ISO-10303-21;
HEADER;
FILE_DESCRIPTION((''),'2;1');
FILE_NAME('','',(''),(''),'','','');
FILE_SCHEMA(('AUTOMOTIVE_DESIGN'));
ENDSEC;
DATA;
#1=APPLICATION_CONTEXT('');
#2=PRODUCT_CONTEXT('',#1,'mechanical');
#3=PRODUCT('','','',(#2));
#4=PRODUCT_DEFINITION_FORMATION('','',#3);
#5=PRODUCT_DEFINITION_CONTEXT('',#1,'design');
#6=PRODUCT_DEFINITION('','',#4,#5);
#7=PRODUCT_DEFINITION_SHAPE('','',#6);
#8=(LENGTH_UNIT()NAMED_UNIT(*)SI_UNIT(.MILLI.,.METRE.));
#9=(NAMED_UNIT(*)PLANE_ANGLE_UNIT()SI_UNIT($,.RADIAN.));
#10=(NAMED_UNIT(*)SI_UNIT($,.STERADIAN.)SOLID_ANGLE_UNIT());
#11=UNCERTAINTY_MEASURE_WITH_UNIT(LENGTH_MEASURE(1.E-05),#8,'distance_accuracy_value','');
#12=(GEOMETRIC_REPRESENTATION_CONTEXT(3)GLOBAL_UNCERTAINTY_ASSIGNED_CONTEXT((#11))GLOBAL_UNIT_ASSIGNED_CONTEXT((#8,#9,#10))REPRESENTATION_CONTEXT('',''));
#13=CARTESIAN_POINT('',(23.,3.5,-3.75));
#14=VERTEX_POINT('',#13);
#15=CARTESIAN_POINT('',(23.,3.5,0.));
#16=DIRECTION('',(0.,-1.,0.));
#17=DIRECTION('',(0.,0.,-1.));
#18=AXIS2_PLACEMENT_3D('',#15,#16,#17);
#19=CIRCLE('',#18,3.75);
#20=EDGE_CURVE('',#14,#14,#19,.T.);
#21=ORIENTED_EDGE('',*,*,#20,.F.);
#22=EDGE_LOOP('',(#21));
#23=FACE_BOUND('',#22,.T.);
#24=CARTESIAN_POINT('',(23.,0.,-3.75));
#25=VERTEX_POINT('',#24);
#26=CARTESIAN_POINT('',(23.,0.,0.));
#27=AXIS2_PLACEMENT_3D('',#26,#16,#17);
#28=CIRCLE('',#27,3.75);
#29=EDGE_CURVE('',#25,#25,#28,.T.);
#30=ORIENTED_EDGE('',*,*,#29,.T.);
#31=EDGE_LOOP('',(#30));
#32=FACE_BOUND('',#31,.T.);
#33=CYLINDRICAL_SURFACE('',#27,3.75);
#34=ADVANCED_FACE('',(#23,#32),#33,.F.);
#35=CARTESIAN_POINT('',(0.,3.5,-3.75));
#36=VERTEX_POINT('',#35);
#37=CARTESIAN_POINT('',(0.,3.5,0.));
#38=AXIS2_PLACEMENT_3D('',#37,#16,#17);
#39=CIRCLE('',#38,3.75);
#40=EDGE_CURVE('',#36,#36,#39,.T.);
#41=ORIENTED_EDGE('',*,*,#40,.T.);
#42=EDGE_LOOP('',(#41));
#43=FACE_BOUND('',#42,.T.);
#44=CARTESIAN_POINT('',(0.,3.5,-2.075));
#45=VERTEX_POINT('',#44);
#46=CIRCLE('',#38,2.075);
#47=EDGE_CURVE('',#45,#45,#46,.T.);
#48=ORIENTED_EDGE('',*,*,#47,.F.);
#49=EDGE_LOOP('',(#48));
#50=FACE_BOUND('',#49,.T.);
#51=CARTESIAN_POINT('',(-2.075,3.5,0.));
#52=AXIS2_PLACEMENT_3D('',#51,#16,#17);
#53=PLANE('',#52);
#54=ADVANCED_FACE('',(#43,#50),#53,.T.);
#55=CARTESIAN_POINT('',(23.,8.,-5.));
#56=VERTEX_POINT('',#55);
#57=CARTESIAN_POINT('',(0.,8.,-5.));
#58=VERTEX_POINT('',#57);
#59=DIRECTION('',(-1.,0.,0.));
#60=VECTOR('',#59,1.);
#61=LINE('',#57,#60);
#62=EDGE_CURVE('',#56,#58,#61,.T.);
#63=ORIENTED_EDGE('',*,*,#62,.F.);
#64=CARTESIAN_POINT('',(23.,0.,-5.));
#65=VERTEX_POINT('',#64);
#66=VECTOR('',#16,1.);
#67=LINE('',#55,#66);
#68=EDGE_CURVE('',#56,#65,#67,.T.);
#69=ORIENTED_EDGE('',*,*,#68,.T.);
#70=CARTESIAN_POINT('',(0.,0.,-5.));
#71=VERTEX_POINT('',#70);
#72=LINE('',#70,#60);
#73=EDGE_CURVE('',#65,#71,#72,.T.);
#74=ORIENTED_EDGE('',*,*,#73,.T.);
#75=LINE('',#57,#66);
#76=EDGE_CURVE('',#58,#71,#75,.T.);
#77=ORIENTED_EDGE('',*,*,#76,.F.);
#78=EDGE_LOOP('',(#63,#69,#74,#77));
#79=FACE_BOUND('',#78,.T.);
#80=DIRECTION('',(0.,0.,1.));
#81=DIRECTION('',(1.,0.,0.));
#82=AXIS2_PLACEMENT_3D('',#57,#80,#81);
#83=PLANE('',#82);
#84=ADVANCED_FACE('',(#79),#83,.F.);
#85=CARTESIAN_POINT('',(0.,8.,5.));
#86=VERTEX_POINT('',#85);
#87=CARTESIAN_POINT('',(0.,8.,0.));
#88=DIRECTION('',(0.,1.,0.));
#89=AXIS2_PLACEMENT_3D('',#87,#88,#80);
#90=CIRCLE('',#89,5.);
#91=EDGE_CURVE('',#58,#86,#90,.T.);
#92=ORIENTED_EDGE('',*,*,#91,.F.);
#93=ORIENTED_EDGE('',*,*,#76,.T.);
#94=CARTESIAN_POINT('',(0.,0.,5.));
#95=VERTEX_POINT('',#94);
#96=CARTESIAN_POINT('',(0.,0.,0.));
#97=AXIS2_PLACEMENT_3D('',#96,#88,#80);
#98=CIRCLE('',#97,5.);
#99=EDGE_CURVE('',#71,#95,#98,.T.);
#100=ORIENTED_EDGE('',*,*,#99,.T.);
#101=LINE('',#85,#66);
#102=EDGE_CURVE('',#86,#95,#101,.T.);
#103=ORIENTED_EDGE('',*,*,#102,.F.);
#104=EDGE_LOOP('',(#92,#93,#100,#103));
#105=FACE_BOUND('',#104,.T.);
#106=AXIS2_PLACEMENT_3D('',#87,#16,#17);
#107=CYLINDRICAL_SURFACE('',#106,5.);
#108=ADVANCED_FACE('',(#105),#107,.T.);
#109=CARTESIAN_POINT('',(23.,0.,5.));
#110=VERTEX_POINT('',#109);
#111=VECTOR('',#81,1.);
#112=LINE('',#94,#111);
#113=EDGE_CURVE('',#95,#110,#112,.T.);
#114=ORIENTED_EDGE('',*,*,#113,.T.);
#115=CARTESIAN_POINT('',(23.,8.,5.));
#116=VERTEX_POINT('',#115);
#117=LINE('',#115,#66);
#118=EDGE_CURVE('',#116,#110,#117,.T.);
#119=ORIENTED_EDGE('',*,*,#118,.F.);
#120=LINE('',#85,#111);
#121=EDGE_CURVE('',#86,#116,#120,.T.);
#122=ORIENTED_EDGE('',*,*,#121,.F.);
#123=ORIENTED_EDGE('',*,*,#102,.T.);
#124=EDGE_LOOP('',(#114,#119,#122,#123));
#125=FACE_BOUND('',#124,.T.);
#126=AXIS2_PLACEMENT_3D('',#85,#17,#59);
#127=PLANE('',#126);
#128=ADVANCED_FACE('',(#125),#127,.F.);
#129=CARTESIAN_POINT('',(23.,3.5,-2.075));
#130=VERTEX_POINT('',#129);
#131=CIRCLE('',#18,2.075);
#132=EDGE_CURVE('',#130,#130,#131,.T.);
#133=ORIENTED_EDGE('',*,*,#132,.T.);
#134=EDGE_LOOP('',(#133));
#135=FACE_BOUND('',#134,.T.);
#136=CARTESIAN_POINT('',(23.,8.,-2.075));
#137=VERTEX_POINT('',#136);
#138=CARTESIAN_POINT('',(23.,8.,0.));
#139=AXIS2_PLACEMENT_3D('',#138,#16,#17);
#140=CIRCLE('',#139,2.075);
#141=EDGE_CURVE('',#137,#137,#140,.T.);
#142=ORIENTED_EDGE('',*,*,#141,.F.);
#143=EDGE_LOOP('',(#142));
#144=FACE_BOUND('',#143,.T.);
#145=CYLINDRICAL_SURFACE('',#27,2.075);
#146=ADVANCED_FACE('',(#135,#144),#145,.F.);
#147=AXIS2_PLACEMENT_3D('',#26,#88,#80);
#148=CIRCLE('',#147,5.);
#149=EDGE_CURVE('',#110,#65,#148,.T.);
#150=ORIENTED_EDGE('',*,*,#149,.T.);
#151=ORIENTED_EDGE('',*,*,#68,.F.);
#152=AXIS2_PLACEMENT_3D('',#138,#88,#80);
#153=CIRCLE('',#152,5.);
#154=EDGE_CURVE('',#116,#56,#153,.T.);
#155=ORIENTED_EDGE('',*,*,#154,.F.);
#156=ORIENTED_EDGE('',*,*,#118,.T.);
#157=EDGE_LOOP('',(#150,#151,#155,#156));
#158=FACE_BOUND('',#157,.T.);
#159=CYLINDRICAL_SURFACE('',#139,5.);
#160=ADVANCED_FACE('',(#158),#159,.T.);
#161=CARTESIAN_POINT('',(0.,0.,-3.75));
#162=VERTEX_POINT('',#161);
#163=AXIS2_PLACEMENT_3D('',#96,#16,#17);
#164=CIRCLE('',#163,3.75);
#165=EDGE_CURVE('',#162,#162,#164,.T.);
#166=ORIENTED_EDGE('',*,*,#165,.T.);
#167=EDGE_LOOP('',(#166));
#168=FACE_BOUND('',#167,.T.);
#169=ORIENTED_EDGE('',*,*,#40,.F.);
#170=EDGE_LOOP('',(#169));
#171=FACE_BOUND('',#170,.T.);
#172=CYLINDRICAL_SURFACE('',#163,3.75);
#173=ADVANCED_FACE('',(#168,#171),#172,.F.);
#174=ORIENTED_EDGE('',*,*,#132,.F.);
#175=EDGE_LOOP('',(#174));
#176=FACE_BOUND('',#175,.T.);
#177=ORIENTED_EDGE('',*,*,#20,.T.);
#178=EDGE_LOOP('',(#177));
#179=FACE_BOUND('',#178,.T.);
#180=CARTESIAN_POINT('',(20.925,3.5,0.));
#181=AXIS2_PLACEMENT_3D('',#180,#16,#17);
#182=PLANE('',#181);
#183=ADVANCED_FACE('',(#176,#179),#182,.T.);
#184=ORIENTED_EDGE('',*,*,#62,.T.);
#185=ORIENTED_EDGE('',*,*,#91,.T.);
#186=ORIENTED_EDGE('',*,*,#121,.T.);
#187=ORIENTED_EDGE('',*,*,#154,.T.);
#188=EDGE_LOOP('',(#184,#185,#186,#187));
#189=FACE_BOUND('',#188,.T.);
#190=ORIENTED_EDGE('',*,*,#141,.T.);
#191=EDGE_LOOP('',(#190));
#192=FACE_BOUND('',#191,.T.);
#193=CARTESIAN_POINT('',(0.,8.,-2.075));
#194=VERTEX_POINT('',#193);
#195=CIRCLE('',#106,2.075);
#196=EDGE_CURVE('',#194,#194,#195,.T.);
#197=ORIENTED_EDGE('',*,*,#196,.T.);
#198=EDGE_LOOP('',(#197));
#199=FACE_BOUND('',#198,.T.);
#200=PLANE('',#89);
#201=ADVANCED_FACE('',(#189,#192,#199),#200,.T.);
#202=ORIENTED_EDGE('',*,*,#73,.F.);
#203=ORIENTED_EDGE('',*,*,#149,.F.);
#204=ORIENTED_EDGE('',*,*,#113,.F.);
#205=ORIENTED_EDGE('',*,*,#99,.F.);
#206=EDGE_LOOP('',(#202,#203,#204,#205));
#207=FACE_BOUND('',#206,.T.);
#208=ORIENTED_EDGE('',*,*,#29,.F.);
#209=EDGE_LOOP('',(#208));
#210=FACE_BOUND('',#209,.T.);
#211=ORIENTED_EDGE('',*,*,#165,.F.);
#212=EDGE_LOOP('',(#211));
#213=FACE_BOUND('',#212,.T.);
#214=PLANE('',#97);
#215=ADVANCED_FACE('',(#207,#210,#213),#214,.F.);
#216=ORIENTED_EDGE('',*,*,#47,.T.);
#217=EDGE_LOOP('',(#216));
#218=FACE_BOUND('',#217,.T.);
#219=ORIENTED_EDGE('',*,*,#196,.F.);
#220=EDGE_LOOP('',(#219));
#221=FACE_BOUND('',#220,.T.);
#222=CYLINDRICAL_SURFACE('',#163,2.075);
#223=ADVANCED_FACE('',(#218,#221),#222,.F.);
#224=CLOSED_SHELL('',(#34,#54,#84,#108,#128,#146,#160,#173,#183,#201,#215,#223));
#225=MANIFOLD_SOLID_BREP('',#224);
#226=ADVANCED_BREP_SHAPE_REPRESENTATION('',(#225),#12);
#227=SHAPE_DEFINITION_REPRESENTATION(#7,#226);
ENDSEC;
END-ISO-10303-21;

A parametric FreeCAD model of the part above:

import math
import FreeCAD as App
import Part
import Sketcher

V = App.Vector
Q = App.Units.Quantity

doc = App.newDocument("Part")
body = doc.addObject("PartDesign::Body", "Body")

# Sketch on XZ plane
sketch1 = body.newObject("Sketcher::SketchObject", "Sketch")
sketch1.AttachmentSupport = (doc.getObject("XZ_Plane"), [""])
sketch1.MapMode = "FlatFace"
sketch1.addGeometry([
    Part.LineSegment(V(23, -5, 0), V(0, -5, 0)),
    Part.ArcOfCircle(Part.Circle(V(0, 0, 0), V(0, 0, 1), 5), math.radians(90), math.radians(270)),
    Part.LineSegment(V(0, 5, 0), V(23, 5, 0)),
    Part.ArcOfCircle(Part.Circle(V(23, 0, 0), V(0, 0, 1), 5), math.radians(-90), math.radians(90)),
], False)
sketch1.addConstraint([
    Sketcher.Constraint("Tangent", 0, 2, 1, 2),
    Sketcher.Constraint("Tangent", 1, 1, 2, 1),
    Sketcher.Constraint("Tangent", 2, 2, 3, 2),
    Sketcher.Constraint("Tangent", 3, 1, 0, 1),
    Sketcher.Constraint("Horizontal", 0),
    Sketcher.Constraint("Horizontal", 2),
    Sketcher.Constraint("Coincident", 1, 3, -1, 1),
    Sketcher.Constraint("Radius", 1, Q("5 mm")),
    Sketcher.Constraint("DistanceX", 0, 2, 0, 1, Q("23 mm")),
])
pad1 = body.newObject("PartDesign::Pad", "Pad")
pad1.Profile = sketch1
pad1.Length = 8
pad1.Reversed = True

# Sketch on XY plane
sketch2 = body.newObject("Sketcher::SketchObject", "Sketch001")
sketch2.AttachmentSupport = (doc.getObject("XY_Plane"), [""])
sketch2.MapMode = "FlatFace"
sketch2.addGeometry([
    Part.LineSegment(V(0, 8, 0), V(-2.1, 8, 0)),  # 0
    Part.LineSegment(V(-2.1, 8, 0), V(-2.1, 3.5, 0)),  # 1
    Part.LineSegment(V(-2.1, 3.5, 0), V(-3.8, 3.5, 0)),  # 2
    Part.LineSegment(V(-3.8, 3.5, 0), V(-3.8, 0, 0)),  # 3
    Part.LineSegment(V(-3.8, 0, 0), V(0, 0, 0)),  # 4
    Part.LineSegment(V(0, 0, 0), V(0, 8, 0)),  # 5
], False)
sketch2.addConstraint([
    Sketcher.Constraint("Coincident", 0, 2, 1, 1),
    Sketcher.Constraint("Coincident", 1, 2, 2, 1),
    Sketcher.Constraint("Coincident", 2, 2, 3, 1),
    Sketcher.Constraint("Coincident", 3, 2, 4, 1),
    Sketcher.Constraint("Coincident", 4, 2, 5, 1),
    Sketcher.Constraint("Coincident", 5, 2, 0, 1),
    Sketcher.Constraint("Horizontal", 0),
    Sketcher.Constraint("Vertical", 1),
    Sketcher.Constraint("Horizontal", 2),
    Sketcher.Constraint("Vertical", 3),
    Sketcher.Constraint("Horizontal", 4),
    Sketcher.Constraint("Vertical", 5),
    Sketcher.Constraint("Coincident", 4, 2, -1, 1),
    Sketcher.Constraint("DistanceY", 5, 1, 5, 2, Q("8 mm")),
    Sketcher.Constraint("DistanceY", 1, 2, 1, 1, Q("4.5 mm")),
    Sketcher.Constraint("DistanceX", 4, 1, 4, 2, Q("3.75 mm")),
    Sketcher.Constraint("DistanceX", 0, 2, 0, 1, Q("2.075 mm")),
])
groove = body.newObject("PartDesign::Groove", "Groove")
groove.Profile = sketch2
groove.ReferenceAxis = (sketch2, ["V_Axis"])
groove.Angle = 360

# Sketch on XY plane
sketch3 = body.newObject("Sketcher::SketchObject", "Sketch002")
sketch3.AttachmentSupport = (doc.getObject("XY_Plane"), [""])
sketch3.MapMode = "FlatFace"
sketch3.addGeometry([
    Part.LineSegment(V(23, 8, 0), V(20.9, 8, 0)),  # 0
    Part.LineSegment(V(20.9, 8, 0), V(20.9, 3.5, 0)),  # 1
    Part.LineSegment(V(20.9, 3.5, 0), V(19.2, 3.5, 0)),  # 2
    Part.LineSegment(V(19.2, 3.5, 0), V(19.2, 0, 0)),  # 3
    Part.LineSegment(V(19.2, 0, 0), V(23, 0, 0)),  # 4
    Part.LineSegment(V(23, 0, 0), V(23, 8, 0)),  # 5
], False)
sketch3.addGeometry(Part.LineSegment(V(23, 0, 0), V(23, 8, 0)), True)  # axis
sketch3.addConstraint([
    Sketcher.Constraint("Coincident", 0, 2, 1, 1),
    Sketcher.Constraint("Coincident", 1, 2, 2, 1),
    Sketcher.Constraint("Coincident", 2, 2, 3, 1),
    Sketcher.Constraint("Coincident", 3, 2, 4, 1),
    Sketcher.Constraint("Coincident", 4, 2, 5, 1),
    Sketcher.Constraint("Coincident", 5, 2, 0, 1),
    Sketcher.Constraint("Horizontal", 0),
    Sketcher.Constraint("Vertical", 1),
    Sketcher.Constraint("Horizontal", 2),
    Sketcher.Constraint("Vertical", 3),
    Sketcher.Constraint("Horizontal", 4),
    Sketcher.Constraint("Vertical", 5),
    Sketcher.Constraint("Vertical", 6),
    Sketcher.Constraint("Coincident", 6, 1, 4, 2),
    Sketcher.Constraint("PointOnObject", 3, 2, -1),
    Sketcher.Constraint("Horizontal", 0, 2, 6, 2),
    Sketcher.Constraint("DistanceY", 5, 1, 5, 2, Q("8 mm")),
    Sketcher.Constraint("DistanceY", 1, 2, 1, 1, Q("4.5 mm")),
    Sketcher.Constraint("DistanceX", -1, 1, 4, 2, Q("23 mm")),
    Sketcher.Constraint("DistanceX", 4, 1, 4, 2, Q("3.75 mm")),
    Sketcher.Constraint("DistanceX", 0, 2, 0, 1, Q("2.075 mm")),
])
groove2 = body.newObject("PartDesign::Groove", "Groove001")
groove2.Profile = sketch3
groove2.ReferenceAxis = (sketch3, ["Axis0"])
groove2.Angle = 360

doc.recompute()
